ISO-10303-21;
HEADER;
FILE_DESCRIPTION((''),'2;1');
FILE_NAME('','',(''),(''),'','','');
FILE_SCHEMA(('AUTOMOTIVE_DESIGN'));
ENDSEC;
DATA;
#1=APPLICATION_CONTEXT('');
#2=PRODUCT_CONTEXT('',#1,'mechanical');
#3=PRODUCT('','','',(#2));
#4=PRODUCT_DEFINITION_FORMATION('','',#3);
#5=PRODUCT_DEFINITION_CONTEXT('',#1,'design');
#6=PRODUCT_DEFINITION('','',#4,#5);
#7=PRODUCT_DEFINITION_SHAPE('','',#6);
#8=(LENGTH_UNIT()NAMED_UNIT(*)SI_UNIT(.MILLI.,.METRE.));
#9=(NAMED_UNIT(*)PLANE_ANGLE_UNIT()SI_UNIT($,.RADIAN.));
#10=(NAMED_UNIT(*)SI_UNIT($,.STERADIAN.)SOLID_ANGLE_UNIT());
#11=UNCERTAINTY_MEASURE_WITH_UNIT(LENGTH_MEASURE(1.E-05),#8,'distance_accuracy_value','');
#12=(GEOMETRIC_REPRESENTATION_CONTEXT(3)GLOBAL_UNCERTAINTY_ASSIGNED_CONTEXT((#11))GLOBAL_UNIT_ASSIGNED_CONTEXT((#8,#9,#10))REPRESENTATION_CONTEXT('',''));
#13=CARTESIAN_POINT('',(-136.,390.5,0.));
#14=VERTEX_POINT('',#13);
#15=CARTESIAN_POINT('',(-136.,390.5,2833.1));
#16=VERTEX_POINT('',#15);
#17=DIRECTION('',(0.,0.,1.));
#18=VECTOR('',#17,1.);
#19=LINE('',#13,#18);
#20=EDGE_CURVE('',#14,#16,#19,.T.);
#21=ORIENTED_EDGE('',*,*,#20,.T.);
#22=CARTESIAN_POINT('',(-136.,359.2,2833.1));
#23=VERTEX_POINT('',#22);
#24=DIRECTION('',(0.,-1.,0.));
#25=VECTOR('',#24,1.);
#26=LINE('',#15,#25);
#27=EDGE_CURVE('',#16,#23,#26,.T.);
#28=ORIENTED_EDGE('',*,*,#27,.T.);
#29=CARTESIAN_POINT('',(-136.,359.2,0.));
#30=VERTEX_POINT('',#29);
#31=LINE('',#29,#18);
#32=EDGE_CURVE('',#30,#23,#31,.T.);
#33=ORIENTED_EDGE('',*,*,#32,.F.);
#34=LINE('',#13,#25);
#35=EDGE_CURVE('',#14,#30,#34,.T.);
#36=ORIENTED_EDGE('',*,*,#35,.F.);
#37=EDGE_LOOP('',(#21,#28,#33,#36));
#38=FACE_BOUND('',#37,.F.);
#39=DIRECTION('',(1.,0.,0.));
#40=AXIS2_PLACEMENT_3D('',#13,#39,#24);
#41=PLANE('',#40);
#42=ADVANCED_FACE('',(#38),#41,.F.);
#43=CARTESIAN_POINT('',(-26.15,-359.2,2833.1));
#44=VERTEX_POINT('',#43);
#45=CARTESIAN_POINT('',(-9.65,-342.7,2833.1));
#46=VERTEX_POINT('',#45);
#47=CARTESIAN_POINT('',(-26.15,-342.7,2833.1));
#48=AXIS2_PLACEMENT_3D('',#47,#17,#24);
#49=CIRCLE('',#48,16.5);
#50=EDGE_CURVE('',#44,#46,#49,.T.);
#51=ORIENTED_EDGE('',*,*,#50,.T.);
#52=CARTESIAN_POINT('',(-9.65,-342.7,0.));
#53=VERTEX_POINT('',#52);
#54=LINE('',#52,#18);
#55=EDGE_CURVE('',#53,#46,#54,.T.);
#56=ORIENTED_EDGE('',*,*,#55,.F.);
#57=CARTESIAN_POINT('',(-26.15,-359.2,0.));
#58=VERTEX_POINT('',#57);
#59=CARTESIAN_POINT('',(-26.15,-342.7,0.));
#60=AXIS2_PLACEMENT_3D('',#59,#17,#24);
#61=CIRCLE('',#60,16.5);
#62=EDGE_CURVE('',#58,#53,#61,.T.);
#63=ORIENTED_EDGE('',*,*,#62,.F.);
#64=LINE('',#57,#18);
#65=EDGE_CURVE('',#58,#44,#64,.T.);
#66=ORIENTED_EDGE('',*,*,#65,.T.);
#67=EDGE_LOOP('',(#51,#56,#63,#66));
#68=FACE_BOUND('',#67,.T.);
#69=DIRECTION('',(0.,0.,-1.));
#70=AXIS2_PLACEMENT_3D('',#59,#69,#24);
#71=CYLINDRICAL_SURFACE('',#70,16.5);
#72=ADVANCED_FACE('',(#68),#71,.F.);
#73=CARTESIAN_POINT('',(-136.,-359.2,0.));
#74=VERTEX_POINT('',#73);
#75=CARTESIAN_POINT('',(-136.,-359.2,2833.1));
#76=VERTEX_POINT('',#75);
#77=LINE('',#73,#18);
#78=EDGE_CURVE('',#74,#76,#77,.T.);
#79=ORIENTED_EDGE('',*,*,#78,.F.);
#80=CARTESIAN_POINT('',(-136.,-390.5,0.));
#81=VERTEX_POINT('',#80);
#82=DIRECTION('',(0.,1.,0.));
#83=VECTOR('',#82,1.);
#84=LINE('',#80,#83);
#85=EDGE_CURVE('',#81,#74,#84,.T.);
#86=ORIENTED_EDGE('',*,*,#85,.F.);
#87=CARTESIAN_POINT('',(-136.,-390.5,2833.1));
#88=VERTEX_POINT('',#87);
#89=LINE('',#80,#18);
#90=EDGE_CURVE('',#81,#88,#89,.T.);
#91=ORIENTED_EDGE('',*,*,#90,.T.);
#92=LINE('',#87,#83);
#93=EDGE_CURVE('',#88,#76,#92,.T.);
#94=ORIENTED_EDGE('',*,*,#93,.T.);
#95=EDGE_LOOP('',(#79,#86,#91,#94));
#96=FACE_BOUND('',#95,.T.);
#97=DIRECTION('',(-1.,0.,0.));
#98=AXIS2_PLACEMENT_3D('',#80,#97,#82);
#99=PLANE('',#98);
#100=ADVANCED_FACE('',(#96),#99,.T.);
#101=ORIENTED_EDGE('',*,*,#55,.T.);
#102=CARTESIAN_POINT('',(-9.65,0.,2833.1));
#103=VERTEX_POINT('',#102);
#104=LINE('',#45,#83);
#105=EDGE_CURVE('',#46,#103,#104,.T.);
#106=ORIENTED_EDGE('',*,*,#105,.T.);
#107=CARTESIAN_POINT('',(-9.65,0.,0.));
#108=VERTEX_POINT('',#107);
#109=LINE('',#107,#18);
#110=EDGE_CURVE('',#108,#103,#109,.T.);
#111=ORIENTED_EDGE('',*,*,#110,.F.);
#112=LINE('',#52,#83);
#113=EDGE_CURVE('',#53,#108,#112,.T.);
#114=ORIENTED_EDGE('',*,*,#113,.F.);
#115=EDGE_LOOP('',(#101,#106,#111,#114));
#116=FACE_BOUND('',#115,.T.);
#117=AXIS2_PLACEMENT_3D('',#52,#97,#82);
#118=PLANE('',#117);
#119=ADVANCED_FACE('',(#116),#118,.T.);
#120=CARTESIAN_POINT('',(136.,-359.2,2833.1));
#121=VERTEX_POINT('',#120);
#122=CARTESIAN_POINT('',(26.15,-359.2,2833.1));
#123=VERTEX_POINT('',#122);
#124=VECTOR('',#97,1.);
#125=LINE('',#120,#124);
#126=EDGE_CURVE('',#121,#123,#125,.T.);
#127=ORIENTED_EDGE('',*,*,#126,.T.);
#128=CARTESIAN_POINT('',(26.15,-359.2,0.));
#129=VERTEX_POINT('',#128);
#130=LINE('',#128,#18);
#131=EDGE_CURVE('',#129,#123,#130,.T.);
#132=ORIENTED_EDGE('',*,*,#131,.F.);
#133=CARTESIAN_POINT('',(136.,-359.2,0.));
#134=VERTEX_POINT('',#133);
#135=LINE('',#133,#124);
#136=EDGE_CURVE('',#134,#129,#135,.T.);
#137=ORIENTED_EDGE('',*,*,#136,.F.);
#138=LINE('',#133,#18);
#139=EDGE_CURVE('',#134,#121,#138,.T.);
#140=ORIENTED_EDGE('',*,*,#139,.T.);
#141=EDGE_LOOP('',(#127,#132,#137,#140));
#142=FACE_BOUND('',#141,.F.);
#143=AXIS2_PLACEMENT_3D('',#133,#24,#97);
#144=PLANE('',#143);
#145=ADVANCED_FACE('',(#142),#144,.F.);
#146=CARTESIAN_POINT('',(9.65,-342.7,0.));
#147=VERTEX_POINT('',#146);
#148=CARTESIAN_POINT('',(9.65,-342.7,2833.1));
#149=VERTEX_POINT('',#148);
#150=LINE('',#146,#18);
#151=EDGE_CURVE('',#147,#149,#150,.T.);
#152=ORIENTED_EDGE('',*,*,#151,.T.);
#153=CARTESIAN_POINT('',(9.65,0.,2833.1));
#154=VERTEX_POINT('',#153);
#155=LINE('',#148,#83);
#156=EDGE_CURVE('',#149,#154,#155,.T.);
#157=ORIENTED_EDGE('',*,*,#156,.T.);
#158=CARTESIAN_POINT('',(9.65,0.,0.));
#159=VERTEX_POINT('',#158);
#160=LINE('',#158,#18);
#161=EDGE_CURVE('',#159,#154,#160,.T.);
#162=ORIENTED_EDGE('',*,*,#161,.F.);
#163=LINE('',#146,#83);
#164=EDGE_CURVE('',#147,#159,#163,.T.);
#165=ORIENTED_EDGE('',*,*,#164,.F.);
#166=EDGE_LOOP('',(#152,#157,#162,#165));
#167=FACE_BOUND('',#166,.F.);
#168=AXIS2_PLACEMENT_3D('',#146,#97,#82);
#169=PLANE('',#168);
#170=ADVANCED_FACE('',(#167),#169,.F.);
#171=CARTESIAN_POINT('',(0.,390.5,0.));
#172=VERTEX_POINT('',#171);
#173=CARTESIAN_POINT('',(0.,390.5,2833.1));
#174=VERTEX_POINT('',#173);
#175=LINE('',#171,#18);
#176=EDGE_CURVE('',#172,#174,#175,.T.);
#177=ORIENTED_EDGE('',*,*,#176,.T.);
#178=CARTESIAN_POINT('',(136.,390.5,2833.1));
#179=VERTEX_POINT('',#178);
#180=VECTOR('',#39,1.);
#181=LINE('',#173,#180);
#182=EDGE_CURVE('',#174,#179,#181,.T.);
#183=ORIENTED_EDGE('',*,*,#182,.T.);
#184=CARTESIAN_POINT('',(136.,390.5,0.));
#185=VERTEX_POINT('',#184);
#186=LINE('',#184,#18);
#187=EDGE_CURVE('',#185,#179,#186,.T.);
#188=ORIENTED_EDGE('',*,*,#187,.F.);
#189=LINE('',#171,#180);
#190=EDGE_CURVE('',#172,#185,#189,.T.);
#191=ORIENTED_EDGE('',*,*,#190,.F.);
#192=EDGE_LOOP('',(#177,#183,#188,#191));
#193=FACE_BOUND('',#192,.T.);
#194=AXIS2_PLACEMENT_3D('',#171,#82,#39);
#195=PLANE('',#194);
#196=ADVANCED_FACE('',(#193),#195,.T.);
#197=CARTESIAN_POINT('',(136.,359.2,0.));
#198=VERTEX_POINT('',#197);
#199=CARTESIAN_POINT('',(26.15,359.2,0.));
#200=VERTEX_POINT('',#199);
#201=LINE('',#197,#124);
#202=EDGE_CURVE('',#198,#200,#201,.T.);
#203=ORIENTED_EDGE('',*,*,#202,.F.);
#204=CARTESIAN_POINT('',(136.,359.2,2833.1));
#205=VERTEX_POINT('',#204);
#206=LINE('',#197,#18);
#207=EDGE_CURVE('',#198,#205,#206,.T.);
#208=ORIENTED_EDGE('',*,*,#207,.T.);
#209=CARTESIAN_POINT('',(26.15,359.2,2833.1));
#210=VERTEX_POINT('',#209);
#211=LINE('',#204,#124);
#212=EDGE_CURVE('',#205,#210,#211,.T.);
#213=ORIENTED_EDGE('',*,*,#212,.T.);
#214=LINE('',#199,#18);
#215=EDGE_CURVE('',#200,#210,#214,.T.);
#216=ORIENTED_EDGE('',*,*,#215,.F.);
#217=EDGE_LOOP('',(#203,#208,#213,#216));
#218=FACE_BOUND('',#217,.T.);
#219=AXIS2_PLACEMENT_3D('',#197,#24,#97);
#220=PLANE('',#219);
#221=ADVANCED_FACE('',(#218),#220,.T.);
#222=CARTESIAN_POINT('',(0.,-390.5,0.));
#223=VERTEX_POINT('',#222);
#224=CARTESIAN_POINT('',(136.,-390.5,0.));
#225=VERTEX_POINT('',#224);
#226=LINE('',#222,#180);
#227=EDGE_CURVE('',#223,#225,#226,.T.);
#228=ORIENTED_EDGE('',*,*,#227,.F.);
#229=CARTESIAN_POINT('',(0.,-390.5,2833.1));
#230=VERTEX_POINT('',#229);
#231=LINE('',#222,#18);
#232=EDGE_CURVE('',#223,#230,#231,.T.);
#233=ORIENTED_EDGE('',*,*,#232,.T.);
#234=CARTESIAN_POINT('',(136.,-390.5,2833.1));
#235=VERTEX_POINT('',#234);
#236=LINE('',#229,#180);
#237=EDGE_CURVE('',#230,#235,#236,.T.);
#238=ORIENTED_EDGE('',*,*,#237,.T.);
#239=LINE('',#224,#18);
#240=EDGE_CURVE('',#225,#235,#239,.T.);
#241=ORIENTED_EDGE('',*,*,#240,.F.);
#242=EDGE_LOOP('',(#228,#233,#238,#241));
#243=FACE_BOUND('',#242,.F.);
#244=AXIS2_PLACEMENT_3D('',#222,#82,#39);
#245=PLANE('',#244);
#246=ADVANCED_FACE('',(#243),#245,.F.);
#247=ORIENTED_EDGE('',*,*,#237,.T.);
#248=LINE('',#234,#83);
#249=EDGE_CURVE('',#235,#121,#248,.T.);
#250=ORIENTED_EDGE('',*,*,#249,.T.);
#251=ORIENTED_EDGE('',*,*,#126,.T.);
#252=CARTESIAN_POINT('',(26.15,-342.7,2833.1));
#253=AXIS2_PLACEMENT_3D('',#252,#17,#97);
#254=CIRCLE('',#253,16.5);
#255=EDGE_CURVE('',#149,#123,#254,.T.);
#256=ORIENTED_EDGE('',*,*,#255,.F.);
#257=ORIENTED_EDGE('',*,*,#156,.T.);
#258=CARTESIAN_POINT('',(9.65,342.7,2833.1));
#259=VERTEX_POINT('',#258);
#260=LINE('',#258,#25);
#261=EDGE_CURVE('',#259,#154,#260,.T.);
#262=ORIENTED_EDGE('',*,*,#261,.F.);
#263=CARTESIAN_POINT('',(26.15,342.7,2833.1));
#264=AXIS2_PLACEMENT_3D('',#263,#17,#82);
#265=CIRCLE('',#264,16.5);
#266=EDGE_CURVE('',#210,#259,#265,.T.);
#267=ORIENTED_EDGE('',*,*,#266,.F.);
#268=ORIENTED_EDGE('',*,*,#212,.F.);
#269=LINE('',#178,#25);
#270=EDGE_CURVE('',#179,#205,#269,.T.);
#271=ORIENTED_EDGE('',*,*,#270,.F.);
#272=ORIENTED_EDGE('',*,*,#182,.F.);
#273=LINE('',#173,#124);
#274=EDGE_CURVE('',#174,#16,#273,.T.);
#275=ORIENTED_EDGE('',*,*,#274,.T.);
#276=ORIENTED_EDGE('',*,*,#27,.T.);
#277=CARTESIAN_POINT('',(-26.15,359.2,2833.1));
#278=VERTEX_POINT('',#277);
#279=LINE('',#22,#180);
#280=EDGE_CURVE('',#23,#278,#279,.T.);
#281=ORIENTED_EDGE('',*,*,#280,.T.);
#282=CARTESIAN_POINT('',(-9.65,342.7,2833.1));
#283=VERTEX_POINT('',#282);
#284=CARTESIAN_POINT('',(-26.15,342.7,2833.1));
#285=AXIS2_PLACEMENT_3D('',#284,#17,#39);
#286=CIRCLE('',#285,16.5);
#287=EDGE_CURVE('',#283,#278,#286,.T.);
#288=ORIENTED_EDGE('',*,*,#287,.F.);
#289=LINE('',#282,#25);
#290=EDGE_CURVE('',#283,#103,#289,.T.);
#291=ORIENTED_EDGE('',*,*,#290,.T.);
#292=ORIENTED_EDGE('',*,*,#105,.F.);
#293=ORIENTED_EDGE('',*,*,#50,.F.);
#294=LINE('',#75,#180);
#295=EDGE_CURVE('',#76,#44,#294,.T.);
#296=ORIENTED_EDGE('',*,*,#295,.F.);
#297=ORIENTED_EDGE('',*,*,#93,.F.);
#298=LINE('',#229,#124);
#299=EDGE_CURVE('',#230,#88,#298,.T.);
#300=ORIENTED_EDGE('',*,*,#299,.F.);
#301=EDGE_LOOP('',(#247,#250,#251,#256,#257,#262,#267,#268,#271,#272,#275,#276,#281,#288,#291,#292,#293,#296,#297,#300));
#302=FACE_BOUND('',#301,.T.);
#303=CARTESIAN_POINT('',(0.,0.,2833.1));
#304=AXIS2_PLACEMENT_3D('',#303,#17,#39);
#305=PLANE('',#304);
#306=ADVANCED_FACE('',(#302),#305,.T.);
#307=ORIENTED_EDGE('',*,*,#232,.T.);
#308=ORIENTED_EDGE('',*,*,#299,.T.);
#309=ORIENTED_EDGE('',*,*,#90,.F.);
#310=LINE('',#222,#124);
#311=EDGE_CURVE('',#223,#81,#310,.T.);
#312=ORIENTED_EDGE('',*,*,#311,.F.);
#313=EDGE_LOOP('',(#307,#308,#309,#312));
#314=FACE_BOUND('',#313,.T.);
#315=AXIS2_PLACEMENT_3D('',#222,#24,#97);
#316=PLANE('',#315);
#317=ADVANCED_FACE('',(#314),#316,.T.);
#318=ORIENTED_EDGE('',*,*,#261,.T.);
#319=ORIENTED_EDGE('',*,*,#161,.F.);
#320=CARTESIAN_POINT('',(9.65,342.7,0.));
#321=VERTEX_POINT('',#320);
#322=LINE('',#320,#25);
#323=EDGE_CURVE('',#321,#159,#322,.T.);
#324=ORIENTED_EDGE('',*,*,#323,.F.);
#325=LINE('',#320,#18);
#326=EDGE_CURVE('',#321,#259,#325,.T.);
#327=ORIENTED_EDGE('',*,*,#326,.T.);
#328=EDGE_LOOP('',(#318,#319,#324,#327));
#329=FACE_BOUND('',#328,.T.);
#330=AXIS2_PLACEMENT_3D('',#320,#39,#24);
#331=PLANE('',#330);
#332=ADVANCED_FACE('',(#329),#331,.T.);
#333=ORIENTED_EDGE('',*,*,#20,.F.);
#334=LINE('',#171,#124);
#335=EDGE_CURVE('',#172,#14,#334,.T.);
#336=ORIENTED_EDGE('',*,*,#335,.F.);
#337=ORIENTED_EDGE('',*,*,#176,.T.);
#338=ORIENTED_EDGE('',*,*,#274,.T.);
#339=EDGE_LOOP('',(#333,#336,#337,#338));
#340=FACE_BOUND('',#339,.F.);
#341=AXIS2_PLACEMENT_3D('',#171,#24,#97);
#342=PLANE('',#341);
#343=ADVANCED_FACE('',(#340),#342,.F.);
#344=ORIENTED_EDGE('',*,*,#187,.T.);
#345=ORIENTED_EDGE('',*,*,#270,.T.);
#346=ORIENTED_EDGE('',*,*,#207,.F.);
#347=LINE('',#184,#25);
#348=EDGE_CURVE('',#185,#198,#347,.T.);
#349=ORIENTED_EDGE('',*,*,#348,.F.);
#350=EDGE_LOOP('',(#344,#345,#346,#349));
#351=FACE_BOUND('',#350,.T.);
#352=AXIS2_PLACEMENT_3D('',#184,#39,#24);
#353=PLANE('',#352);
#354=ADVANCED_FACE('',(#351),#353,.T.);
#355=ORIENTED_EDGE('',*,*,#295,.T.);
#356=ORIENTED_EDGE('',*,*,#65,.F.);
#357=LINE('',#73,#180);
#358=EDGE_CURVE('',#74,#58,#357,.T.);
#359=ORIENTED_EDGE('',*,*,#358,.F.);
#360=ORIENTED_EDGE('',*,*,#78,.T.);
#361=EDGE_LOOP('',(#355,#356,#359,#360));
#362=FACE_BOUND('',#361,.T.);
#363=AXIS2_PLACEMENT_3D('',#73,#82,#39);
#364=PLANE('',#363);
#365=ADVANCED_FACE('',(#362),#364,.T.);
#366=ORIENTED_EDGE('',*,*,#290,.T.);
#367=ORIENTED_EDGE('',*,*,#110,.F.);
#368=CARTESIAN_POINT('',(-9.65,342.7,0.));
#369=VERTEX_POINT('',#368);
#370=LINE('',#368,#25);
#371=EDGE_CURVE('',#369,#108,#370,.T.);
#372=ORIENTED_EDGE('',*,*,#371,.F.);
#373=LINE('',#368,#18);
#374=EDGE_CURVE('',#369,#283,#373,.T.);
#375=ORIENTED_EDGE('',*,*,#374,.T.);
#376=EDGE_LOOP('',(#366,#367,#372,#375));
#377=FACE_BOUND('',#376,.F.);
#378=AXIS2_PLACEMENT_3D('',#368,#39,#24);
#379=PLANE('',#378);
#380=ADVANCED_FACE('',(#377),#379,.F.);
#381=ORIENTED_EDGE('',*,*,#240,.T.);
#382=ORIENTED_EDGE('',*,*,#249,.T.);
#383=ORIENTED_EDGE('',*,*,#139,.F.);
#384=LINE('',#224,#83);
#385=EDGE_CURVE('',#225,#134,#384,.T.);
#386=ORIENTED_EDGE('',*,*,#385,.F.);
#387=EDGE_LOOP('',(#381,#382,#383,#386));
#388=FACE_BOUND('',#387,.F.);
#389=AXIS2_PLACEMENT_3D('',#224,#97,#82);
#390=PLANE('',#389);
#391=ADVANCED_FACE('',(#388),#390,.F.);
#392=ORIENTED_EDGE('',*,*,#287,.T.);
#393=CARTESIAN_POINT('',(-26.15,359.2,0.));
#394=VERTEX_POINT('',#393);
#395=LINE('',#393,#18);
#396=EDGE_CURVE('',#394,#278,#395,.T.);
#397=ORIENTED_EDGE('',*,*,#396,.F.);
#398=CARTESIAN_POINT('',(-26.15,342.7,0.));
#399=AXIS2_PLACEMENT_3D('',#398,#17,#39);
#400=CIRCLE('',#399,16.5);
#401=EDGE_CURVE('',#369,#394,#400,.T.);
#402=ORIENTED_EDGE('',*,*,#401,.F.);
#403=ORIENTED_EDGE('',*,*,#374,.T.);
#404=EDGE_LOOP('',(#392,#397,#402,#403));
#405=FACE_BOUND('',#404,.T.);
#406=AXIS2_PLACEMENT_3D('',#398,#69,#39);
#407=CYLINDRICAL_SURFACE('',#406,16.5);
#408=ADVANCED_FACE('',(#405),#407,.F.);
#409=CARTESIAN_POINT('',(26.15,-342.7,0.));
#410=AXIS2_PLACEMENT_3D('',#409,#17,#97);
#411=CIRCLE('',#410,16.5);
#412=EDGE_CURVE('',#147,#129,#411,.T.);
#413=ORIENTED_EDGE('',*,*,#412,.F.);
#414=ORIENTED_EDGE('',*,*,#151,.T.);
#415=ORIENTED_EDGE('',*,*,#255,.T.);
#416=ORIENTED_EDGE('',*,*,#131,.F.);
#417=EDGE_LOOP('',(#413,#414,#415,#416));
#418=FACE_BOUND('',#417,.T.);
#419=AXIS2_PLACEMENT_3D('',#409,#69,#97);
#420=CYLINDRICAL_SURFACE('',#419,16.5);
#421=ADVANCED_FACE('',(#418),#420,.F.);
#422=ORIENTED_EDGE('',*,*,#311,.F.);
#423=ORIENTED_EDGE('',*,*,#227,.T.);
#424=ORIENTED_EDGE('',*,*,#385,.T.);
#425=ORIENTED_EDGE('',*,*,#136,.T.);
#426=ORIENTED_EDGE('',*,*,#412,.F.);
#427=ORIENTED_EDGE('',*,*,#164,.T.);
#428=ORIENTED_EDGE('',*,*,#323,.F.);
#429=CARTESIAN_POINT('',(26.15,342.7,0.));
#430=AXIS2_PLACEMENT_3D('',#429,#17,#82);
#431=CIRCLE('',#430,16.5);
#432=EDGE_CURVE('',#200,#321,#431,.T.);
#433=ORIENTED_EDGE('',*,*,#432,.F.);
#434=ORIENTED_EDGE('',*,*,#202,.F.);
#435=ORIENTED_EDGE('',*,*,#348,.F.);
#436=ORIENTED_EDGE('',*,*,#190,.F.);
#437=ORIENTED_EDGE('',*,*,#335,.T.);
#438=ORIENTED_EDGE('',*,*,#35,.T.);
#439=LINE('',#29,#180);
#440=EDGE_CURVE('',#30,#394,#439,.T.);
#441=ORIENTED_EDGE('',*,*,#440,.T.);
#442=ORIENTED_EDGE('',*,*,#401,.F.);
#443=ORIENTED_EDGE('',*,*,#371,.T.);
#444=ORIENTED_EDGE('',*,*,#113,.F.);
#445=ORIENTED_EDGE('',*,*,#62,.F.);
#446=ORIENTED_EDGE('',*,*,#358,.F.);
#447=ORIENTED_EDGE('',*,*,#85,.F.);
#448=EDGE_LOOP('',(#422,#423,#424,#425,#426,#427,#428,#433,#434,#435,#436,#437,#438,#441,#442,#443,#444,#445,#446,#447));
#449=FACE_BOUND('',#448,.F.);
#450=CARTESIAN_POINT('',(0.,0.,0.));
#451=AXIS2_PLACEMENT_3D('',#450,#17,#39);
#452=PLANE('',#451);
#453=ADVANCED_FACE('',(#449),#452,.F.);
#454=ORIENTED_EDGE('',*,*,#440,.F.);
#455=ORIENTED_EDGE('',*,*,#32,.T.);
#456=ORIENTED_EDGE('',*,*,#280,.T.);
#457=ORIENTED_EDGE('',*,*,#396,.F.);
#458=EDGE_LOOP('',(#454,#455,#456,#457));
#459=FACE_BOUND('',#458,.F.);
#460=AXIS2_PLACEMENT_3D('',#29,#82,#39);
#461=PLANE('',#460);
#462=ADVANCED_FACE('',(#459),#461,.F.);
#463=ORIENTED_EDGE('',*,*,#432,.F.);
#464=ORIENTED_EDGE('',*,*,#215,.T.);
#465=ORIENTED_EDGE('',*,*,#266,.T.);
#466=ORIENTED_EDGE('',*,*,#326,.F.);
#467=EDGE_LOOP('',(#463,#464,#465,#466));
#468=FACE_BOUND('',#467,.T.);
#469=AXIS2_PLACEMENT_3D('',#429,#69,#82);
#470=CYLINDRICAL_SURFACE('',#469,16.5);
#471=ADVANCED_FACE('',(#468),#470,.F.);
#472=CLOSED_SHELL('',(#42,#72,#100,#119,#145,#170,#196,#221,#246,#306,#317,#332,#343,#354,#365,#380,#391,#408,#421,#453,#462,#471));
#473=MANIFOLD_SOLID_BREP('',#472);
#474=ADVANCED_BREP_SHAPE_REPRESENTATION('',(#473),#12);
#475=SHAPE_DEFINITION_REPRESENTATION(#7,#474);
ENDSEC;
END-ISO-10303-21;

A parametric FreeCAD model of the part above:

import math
import FreeCAD as App
import Part
import Sketcher
Q = App.Units.Quantity

doc = App.newDocument("Part")
body = doc.addObject("PartDesign::Body", "Body")

# Sketch on XY plane
sketch1 = body.newObject("Sketcher::SketchObject", "Sketch")
sketch1.AttachmentSupport = (doc.getObject("XY_Plane"), [""])
sketch1.MapMode = "FlatFace"
sketch1.addGeometry([
    Part.LineSegment(App.Vector(-136, -359.2, 0), App.Vector(-136, -390.5, 0)),  # 0
    Part.LineSegment(App.Vector(-136, -390.5, 0), App.Vector(136, -390.5, 0)),  # 1
    Part.LineSegment(App.Vector(136, -390.5, 0), App.Vector(136, -359.2, 0)),  # 2
    Part.LineSegment(App.Vector(136, -359.2, 0), App.Vector(26.15, -359.2, 0)),  # 3
    Part.ArcOfCircle(Part.Circle(App.Vector(26.15, -342.7, 0), App.Vector(0, 0, 1), 16.5), math.radians(180), math.radians(270)),  # 4
    Part.LineSegment(App.Vector(9.65, -342.7, 0), App.Vector(9.65, 342.7, 0)),  # 5
    Part.ArcOfCircle(Part.Circle(App.Vector(26.15, 342.7, 0), App.Vector(0, 0, 1), 16.5), math.radians(90), math.radians(180)),  # 6
    Part.LineSegment(App.Vector(26.15, 359.2, 0), App.Vector(136, 359.2, 0)),  # 7
    Part.LineSegment(App.Vector(136, 359.2, 0), App.Vector(136, 390.5, 0)),  # 8
    Part.LineSegment(App.Vector(136, 390.5, 0), App.Vector(-136, 390.5, 0)),  # 9
    Part.LineSegment(App.Vector(-136, 390.5, 0), App.Vector(-136, 359.2, 0)),  # 10
    Part.LineSegment(App.Vector(-136, 359.2, 0), App.Vector(-26.15, 359.2, 0)),  # 11
    Part.ArcOfCircle(Part.Circle(App.Vector(-26.15, 342.7, 0), App.Vector(0, 0, 1), 16.5), math.radians(0), math.radians(90)),  # 12
    Part.LineSegment(App.Vector(-9.65, 342.7, 0), App.Vector(-9.65, -342.7, 0)),  # 13
    Part.ArcOfCircle(Part.Circle(App.Vector(-26.15, -342.7, 0), App.Vector(0, 0, 1), 16.5), math.radians(-90), math.radians(0)),  # 14
    Part.LineSegment(App.Vector(-26.15, -359.2, 0), App.Vector(-136, -359.2, 0)),  # 15
], False)
sketch1.addConstraint([
    Sketcher.Constraint("Coincident", 0, 2, 1, 1),
    Sketcher.Constraint("Coincident", 1, 2, 2, 1),
    Sketcher.Constraint("Coincident", 2, 2, 3, 1),
    Sketcher.Constraint("Tangent", 3, 2, 4, 2),
    Sketcher.Constraint("Tangent", 4, 1, 5, 1),
    Sketcher.Constraint("Tangent", 5, 2, 6, 2),
    Sketcher.Constraint("Tangent", 6, 1, 7, 1),
    Sketcher.Constraint("Coincident", 7, 2, 8, 1),
    Sketcher.Constraint("Coincident", 8, 2, 9, 1),
    Sketcher.Constraint("Coincident", 9, 2, 10, 1),
    Sketcher.Constraint("Coincident", 10, 2, 11, 1),
    Sketcher.Constraint("Tangent", 11, 2, 12, 2),
    Sketcher.Constraint("Tangent", 12, 1, 13, 1),
    Sketcher.Constraint("Tangent", 13, 2, 14, 2),
    Sketcher.Constraint("Tangent", 14, 1, 15, 1),
    Sketcher.Constraint("Coincident", 15, 2, 0, 1),
    Sketcher.Constraint("Vertical", 0),
    Sketcher.Constraint("Horizontal", 1),
    Sketcher.Constraint("Vertical", 2),
    Sketcher.Constraint("Horizontal", 3),
    Sketcher.Constraint("Vertical", 5),
    Sketcher.Constraint("Horizontal", 7),
    Sketcher.Constraint("Vertical", 8),
    Sketcher.Constraint("Horizontal", 9),
    Sketcher.Constraint("Vertical", 10),
    Sketcher.Constraint("Horizontal", 11),
    Sketcher.Constraint("Vertical", 13),
    Sketcher.Constraint("Horizontal", 15),
    Sketcher.Constraint("Equal", 4, 6),
    Sketcher.Constraint("Equal", 6, 12),
    Sketcher.Constraint("Equal", 12, 14),
    Sketcher.Constraint("Symmetric", 4, 3, 12, 3, -1, 1),
    Sketcher.Constraint("Symmetric", 0, 2, 8, 2, -1, 1),
    Sketcher.Constraint("Symmetric", 7, 2, 10, 2, -2),
    Sketcher.Constraint("Symmetric", 2, 2, 15, 2, -2),
    Sketcher.Constraint("Radius", 4, Q("16.5 mm")),
    Sketcher.Constraint("DistanceY", 0, 2, 0, 1, Q("31.3 mm")),
    Sketcher.Constraint("DistanceX", 0, 2, -1, 1, Q("136 mm")),
    Sketcher.Constraint("DistanceY", 0, 2, -1, 1, Q("390.5 mm")),
    Sketcher.Constraint("DistanceX", -1, 1, 4, 1, Q("9.65 mm")),
])
pad1 = body.newObject("PartDesign::Pad", "Pad")
pad1.Profile = sketch1
pad1.Length = 2833.1

doc.recompute()
